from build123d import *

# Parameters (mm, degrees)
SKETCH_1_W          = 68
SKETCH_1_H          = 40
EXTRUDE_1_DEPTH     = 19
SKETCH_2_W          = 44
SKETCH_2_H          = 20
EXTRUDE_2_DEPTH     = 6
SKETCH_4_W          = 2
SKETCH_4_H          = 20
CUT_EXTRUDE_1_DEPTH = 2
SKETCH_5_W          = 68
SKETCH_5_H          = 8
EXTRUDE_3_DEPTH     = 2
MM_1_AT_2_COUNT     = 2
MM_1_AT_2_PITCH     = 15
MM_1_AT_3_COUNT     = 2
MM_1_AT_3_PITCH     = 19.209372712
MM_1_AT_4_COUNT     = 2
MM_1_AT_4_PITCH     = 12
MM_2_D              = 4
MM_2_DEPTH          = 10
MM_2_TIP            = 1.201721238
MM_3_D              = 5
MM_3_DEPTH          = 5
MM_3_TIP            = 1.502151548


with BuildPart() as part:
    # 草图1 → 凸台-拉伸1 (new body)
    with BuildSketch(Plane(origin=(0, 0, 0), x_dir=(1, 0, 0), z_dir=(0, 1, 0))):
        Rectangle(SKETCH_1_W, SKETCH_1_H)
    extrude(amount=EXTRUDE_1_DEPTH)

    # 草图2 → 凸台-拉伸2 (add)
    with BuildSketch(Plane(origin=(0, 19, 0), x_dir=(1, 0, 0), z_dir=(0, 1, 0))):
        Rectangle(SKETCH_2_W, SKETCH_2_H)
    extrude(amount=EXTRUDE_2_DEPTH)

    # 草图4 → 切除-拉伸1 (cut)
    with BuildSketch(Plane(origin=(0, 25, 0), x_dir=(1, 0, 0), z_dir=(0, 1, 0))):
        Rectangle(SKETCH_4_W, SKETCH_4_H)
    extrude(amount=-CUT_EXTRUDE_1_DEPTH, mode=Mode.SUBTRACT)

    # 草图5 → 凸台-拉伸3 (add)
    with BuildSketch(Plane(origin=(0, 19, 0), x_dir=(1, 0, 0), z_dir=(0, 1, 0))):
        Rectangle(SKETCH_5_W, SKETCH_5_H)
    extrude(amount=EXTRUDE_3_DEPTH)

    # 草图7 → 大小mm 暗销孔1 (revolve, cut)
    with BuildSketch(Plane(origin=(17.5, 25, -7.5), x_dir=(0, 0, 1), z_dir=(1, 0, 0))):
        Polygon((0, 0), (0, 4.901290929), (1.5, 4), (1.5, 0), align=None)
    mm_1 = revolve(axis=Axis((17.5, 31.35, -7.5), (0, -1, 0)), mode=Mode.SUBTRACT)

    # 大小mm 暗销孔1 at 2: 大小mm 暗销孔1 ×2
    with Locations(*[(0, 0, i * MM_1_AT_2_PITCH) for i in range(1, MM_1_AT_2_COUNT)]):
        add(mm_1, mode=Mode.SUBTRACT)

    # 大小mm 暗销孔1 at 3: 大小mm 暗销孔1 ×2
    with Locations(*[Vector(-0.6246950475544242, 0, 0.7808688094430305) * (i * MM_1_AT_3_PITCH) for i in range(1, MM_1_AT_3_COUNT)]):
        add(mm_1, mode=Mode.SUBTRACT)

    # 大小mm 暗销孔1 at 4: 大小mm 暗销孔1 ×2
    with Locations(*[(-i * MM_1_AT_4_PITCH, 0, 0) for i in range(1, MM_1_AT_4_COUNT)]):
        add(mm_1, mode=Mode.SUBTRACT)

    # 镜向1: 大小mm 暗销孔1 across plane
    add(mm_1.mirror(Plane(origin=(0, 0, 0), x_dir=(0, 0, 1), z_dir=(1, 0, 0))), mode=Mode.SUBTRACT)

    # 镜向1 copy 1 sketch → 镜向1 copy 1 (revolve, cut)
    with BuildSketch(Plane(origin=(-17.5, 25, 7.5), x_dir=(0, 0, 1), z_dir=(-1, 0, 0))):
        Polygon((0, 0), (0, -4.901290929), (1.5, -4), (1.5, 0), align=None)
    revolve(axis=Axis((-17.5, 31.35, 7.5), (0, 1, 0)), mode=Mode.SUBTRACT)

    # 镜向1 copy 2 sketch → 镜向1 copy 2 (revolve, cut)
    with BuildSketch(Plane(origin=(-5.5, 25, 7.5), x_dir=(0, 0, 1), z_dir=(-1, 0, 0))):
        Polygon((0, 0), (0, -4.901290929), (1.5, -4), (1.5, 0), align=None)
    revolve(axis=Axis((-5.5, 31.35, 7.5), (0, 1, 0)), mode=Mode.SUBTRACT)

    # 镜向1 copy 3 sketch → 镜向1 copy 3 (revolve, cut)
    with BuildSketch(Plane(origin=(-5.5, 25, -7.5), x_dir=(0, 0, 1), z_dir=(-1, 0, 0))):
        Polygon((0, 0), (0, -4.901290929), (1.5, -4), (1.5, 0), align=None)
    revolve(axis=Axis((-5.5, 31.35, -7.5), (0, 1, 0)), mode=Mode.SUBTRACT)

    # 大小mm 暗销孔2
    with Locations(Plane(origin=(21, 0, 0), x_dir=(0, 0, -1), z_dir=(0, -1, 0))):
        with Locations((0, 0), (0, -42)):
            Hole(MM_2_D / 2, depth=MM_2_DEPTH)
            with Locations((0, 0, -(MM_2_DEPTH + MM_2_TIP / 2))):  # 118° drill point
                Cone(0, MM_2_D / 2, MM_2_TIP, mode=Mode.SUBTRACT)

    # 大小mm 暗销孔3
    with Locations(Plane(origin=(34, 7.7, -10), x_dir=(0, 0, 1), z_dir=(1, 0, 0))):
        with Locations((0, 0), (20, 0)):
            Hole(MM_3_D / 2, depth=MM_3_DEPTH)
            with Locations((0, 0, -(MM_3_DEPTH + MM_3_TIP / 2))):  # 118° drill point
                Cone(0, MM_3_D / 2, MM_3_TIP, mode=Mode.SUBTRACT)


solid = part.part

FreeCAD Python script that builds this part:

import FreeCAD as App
import Part
import Sketcher
from FreeCAD import Vector
Q = App.Units.Quantity


def add_polygon(sketch, points):
    """Adds a closed chain of lines whose ends are joined by coincident constraints."""
    first, n = sketch.GeometryCount, len(points)
    for a, b in zip(points, points[1:] + points[:1]):
        sketch.addGeometry(Part.LineSegment(App.Vector(*a, 0), App.Vector(*b, 0)), False)
    for i in range(n):
        sketch.addConstraint(Sketcher.Constraint("Coincident", first + i, 2, first + (i + 1) % n, 1))

doc = App.newDocument("Part")
body = doc.addObject("PartDesign::Body", "Body")

# Sketch on XZ plane
sketch1 = body.newObject("Sketcher::SketchObject", "Sketch")
sketch1.AttachmentSupport = (doc.getObject("XZ_Plane"), [""])
sketch1.MapMode = "FlatFace"
add_polygon(sketch1, [(-34, -20), (-34, 20), (34, 20), (34, -20)])  # lines 0-3
sketch1.addConstraint([
    Sketcher.Constraint("Vertical", 0),
    Sketcher.Constraint("Horizontal", 1),
    Sketcher.Constraint("Vertical", 2),
    Sketcher.Constraint("Horizontal", 3),
    Sketcher.Constraint("Symmetric", 0, 2, 2, 2, -1, 1),
    Sketcher.Constraint("DistanceX", 1, 1, 1, 2, 68.0),
    Sketcher.Constraint("DistanceY", 0, 1, 0, 2, 40.0),
])
pad1 = body.newObject("PartDesign::Pad", "Pad")
pad1.Profile = sketch1
pad1.Length = 19
pad1.Reversed = True

# Sketch on XZ plane
sketch2 = body.newObject("Sketcher::SketchObject", "Sketch001")
sketch2.AttachmentSupport = (doc.getObject("XZ_Plane"), [""])
sketch2.MapMode = "FlatFace"
sketch2.AttachmentOffset = App.Placement(Vector(0, 0, -19), App.Rotation())
add_polygon(sketch2, [(-22, -10), (-22, 10), (22, 10), (22, -10)])  # lines 0-3
sketch2.addConstraint([
    Sketcher.Constraint("Vertical", 0),
    Sketcher.Constraint("Horizontal", 1),
    Sketcher.Constraint("Vertical", 2),
    Sketcher.Constraint("Horizontal", 3),
    Sketcher.Constraint("Symmetric", 0, 2, 2, 2, -1, 1),
    Sketcher.Constraint("DistanceX", 1, 1, 1, 2, 44.0),
    Sketcher.Constraint("DistanceY", 0, 1, 0, 2, 20.0),
])
pad2 = body.newObject("PartDesign::Pad", "Pad001")
pad2.Profile = sketch2
pad2.Length = 6
pad2.Reversed = True

# Sketch on XZ plane
sketch3 = body.newObject("Sketcher::SketchObject", "Sketch002")
sketch3.AttachmentSupport = (doc.getObject("XZ_Plane"), [""])
sketch3.MapMode = "FlatFace"
sketch3.AttachmentOffset = App.Placement(Vector(0, 0, -25), App.Rotation())
add_polygon(sketch3, [(-1, -10), (-1, 10), (1, 10), (1, -10)])  # lines 0-3
sketch3.addConstraint([
    Sketcher.Constraint("Vertical", 0),
    Sketcher.Constraint("Horizontal", 1),
    Sketcher.Constraint("Vertical", 2),
    Sketcher.Constraint("Horizontal", 3),
    Sketcher.Constraint("Symmetric", 0, 2, 2, 2, -1, 1),
    Sketcher.Constraint("DistanceX", 1, 1, 1, 2, 2.0),
    Sketcher.Constraint("DistanceY", 0, 1, 0, 2, 20.0),
])
pocket1 = body.newObject("PartDesign::Pocket", "Pocket")
pocket1.Profile = sketch3
pocket1.Length = 2
pocket1.Reversed = True

# Sketch on XZ plane
sketch4 = body.newObject("Sketcher::SketchObject", "Sketch003")
sketch4.AttachmentSupport = (doc.getObject("XZ_Plane"), [""])
sketch4.MapMode = "FlatFace"
sketch4.AttachmentOffset = App.Placement(Vector(0, 0, -19), App.Rotation())
add_polygon(sketch4, [(-34, -4), (-34, 4), (34, 4), (34, -4)])  # lines 0-3
sketch4.addConstraint([
    Sketcher.Constraint("Vertical", 0),
    Sketcher.Constraint("Horizontal", 1),
    Sketcher.Constraint("Vertical", 2),
    Sketcher.Constraint("Horizontal", 3),
    Sketcher.Constraint("Symmetric", 0, 2, 2, 2, -1, 1),
    Sketcher.Constraint("DistanceX", 1, 1, 1, 2, 68.0),
    Sketcher.Constraint("DistanceY", 0, 1, 0, 2, 8.0),
])
pad3 = body.newObject("PartDesign::Pad", "Pad002")
pad3.Profile = sketch4
pad3.Length = 2
pad3.Reversed = True

# Sketch on YZ plane
sketch5 = body.newObject("Sketcher::SketchObject", "Sketch004")
sketch5.AttachmentSupport = (doc.getObject("YZ_Plane"), [""])
sketch5.MapMode = "FlatFace"
sketch5.AttachmentOffset = App.Placement(Vector(0, 0, 17.5), App.Rotation())
add_polygon(sketch5, [(20.098709, -7.5), (25, -7.5), (25, -6), (21, -6)])  # lines 0-3
sketch5.addGeometry(Part.LineSegment(Vector(25, -7.5, 0), Vector(20.098709, -7.5, 0)), True)  # axis
sketch5.addConstraint([
    Sketcher.Constraint("Horizontal", 0),
    Sketcher.Constraint("Vertical", 1),
    Sketcher.Constraint("Horizontal", 2),
    Sketcher.Constraint("Horizontal", 4),
    Sketcher.Constraint("Coincident", 4, 1, 0, 2),
    Sketcher.Constraint("Equal", 0, 4),
    Sketcher.Constraint("DistanceX", 2, 2, 2, 1, 4.0),
    Sketcher.Constraint("Angle", 3, Q("-121 deg")),
    Sketcher.Constraint("DistanceY", 1, 1, 1, 2, 1.5),
    Sketcher.Constraint("DistanceX", -1, 1, 0, 2, 25.0),
    Sketcher.Constraint("DistanceY", 1, 2, -1, 1, 6.0),
])
groove = body.newObject("PartDesign::Groove", "Groove")
groove.Profile = sketch5
groove.ReferenceAxis = (sketch5, ["Axis0"])
groove.Angle = 360
doc.recompute()

linearpattern = body.newObject("PartDesign::LinearPattern", "LinearPattern")
linearpattern.Originals = [groove]
linearpattern.Direction = (doc.getObject("Z_Axis"), [""])
linearpattern.Mode = "offset"
linearpattern.Offset = 15
linearpattern.Occurrences = 2
body.Tip = linearpattern
doc.recompute()

datumline = body.newObject("PartDesign::Line", "DatumLine")
datumline.Placement = App.Placement(Vector(0, 0, 0), App.Rotation(Vector(0, 0, 1), Vector(-0.624695048, 0, 0.780868809)))
linearpattern2 = body.newObject("PartDesign::LinearPattern", "LinearPattern001")
linearpattern2.Originals = [groove]
linearpattern2.Direction = (datumline, [""])
linearpattern2.Mode = "offset"
linearpattern2.Offset = 19.209373
linearpattern2.Occurrences = 2
body.Tip = linearpattern2
doc.recompute()

linearpattern3 = body.newObject("PartDesign::LinearPattern", "LinearPattern002")
linearpattern3.Originals = [groove]
linearpattern3.Direction = (doc.getObject("X_Axis"), [""])
linearpattern3.Mode = "offset"
linearpattern3.Offset = 12
linearpattern3.Occurrences = 2
linearpattern3.Reversed = True
body.Tip = linearpattern3
doc.recompute()

mirrored = body.newObject("PartDesign::Mirrored", "Mirrored")
mirrored.Originals = [groove]
mirrored.MirrorPlane = (doc.getObject("YZ_Plane"), [""])
body.Tip = mirrored

# Sketch on YZ plane
sketch6 = body.newObject("Sketcher::SketchObject", "Sketch005")
sketch6.AttachmentSupport = (doc.getObject("YZ_Plane"), [""])
sketch6.MapMode = "FlatFace"
sketch6.AttachmentOffset = App.Placement(Vector(0, 0, -17.5), App.Rotation())
add_polygon(sketch6, [(25, 7.5), (20.098709, 7.5), (21, 9), (25, 9)])  # lines 0-3
sketch6.addGeometry(Part.LineSegment(Vector(20.098709, 7.5, 0), Vector(25, 7.5, 0)), True)  # axis
sketch6.addConstraint([
    Sketcher.Constraint("Horizontal", 0),
    Sketcher.Constraint("Horizontal", 2),
    Sketcher.Constraint("Vertical", 3),
    Sketcher.Constraint("Horizontal", 4),
    Sketcher.Constraint("Coincident", 4, 1, 0, 2),
    Sketcher.Constraint("Vertical", 2, 2, 4, 2),
    Sketcher.Constraint("DistanceX", 2, 1, 2, 2, 4.0),
    Sketcher.Constraint("Angle", 1, Q("59 deg")),
    Sketcher.Constraint("DistanceY", 3, 2, 3, 1, 1.5),
    Sketcher.Constraint("DistanceX", -1, 1, 1, 2, 21.0),
    Sketcher.Constraint("DistanceY", -1, 1, 1, 2, 9.0),
])
groove2 = body.newObject("PartDesign::Groove", "Groove001")
groove2.Profile = sketch6
groove2.ReferenceAxis = (sketch6, ["Axis0"])
groove2.Angle = 360

# Sketch on YZ plane
sketch7 = body.newObject("Sketcher::SketchObject", "Sketch006")
sketch7.AttachmentSupport = (doc.getObject("YZ_Plane"), [""])
sketch7.MapMode = "FlatFace"
sketch7.AttachmentOffset = App.Placement(Vector(0, 0, -5.5), App.Rotation())
add_polygon(sketch7, [(25, 7.5), (20.098709, 7.5), (21, 9), (25, 9)])  # lines 0-3
sketch7.addGeometry(Part.LineSegment(Vector(20.098709, 7.5, 0), Vector(25, 7.5, 0)), True)  # axis
sketch7.addConstraint([
    Sketcher.Constraint("Horizontal", 0),
    Sketcher.Constraint("Horizontal", 2),
    Sketcher.Constraint("Vertical", 3),
    Sketcher.Constraint("Horizontal", 4),
    Sketcher.Constraint("Coincident", 4, 1, 0, 2),
    Sketcher.Constraint("Vertical", 2, 2, 4, 2),
    Sketcher.Constraint("DistanceX", 2, 1, 2, 2, 4.0),
    Sketcher.Constraint("Angle", 1, Q("59 deg")),
    Sketcher.Constraint("DistanceY", 3, 2, 3, 1, 1.5),
    Sketcher.Constraint("DistanceX", -1, 1, 1, 2, 21.0),
    Sketcher.Constraint("DistanceY", -1, 1, 1, 2, 9.0),
])
groove3 = body.newObject("PartDesign::Groove", "Groove002")
groove3.Profile = sketch7
groove3.ReferenceAxis = (sketch7, ["Axis0"])
groove3.Angle = 360

# Sketch on YZ plane
sketch8 = body.newObject("Sketcher::SketchObject", "Sketch007")
sketch8.AttachmentSupport = (doc.getObject("YZ_Plane"), [""])
sketch8.MapMode = "FlatFace"
sketch8.AttachmentOffset = App.Placement(Vector(0, 0, -5.5), App.Rotation())
add_polygon(sketch8, [(25, -7.5), (20.098709, -7.5), (21, -6), (25, -6)])  # lines 0-3
sketch8.addGeometry(Part.LineSegment(Vector(20.098709, -7.5, 0), Vector(25, -7.5, 0)), True)  # axis
sketch8.addConstraint([
    Sketcher.Constraint("Horizontal", 0),
    Sketcher.Constraint("Horizontal", 2),
    Sketcher.Constraint("Vertical", 3),
    Sketcher.Constraint("Horizontal", 4),
    Sketcher.Constraint("Coincident", 4, 1, 0, 2),
    Sketcher.Constraint("Vertical", 2, 2, 4, 2),
    Sketcher.Constraint("DistanceX", 2, 1, 2, 2, 4.0),
    Sketcher.Constraint("Angle", 1, Q("59 deg")),
    Sketcher.Constraint("DistanceY", 3, 2, 3, 1, 1.5),
    Sketcher.Constraint("DistanceX", -1, 1, 1, 2, 21.0),
    Sketcher.Constraint("DistanceY", 1, 2, -1, 1, 6.0),
])
groove4 = body.newObject("PartDesign::Groove", "Groove003")
groove4.Profile = sketch8
groove4.ReferenceAxis = (sketch8, ["Axis0"])
groove4.Angle = 360

# Sketch on XZ plane
sketch9 = body.newObject("Sketcher::SketchObject", "Sketch008")
sketch9.AttachmentSupport = (doc.getObject("XZ_Plane"), [""])
sketch9.MapMode = "FlatFace"
sketch9.addGeometry([
    Part.Circle(Vector(21, 0, 0), Vector(0, 0, 1), 2),
    Part.Circle(Vector(-21, 0, 0), Vector(0, 0, 1), 2),
], False)
sketch9.addConstraint([
    Sketcher.Constraint("Equal", 0, 1),
    Sketcher.Constraint("Symmetric", 0, 3, 1, 3, -1, 1),
    Sketcher.Constraint("PointOnObject", 0, 3, -1),
    Sketcher.Constraint("Diameter", 0, 4.0),
    Sketcher.Constraint("DistanceX", -1, 1, 0, 3, 21.0),
])
doc.recompute()
hole = body.newObject("PartDesign::Hole", "Hole")
hole.Profile = sketch9
hole.ThreadType = "None"
hole.Diameter = 4
hole.DepthType = "Dimension"
hole.Depth = 10
hole.DrillPoint = "Angled"
hole.DrillPointAngle = 118

# Sketch on YZ plane
sketch10 = body.newObject("Sketcher::SketchObject", "Sketch009")
sketch10.AttachmentSupport = (doc.getObject("YZ_Plane"), [""])
sketch10.MapMode = "FlatFace"
sketch10.AttachmentOffset = App.Placement(Vector(0, 0, 34), App.Rotation())
sketch10.addGeometry([
    Part.Circle(Vector(7.7, -10, 0), Vector(0, 0, 1), 2.5),
    Part.Circle(Vector(7.7, 10, 0), Vector(0, 0, 1), 2.5),
], False)
sketch10.addConstraint([
    Sketcher.Constraint("Equal", 0, 1),
    Sketcher.Constraint("Symmetric", 0, 3, 1, 3, -1),
    Sketcher.Constraint("Diameter", 0, 5.0),
    Sketcher.Constraint("DistanceY", 0, 3, -1, 1, 10.0),
    Sketcher.Constraint("DistanceX", -1, 1, 0, 3, 7.7),
])
doc.recompute()
hole2 = body.newObject("PartDesign::Hole", "Hole001")
hole2.Profile = sketch10
hole2.ThreadType = "None"
hole2.Diameter = 5
hole2.DepthType = "Dimension"
hole2.Depth = 5
hole2.DrillPoint = "Angled"
hole2.DrillPointAngle = 118

doc.recompute()
